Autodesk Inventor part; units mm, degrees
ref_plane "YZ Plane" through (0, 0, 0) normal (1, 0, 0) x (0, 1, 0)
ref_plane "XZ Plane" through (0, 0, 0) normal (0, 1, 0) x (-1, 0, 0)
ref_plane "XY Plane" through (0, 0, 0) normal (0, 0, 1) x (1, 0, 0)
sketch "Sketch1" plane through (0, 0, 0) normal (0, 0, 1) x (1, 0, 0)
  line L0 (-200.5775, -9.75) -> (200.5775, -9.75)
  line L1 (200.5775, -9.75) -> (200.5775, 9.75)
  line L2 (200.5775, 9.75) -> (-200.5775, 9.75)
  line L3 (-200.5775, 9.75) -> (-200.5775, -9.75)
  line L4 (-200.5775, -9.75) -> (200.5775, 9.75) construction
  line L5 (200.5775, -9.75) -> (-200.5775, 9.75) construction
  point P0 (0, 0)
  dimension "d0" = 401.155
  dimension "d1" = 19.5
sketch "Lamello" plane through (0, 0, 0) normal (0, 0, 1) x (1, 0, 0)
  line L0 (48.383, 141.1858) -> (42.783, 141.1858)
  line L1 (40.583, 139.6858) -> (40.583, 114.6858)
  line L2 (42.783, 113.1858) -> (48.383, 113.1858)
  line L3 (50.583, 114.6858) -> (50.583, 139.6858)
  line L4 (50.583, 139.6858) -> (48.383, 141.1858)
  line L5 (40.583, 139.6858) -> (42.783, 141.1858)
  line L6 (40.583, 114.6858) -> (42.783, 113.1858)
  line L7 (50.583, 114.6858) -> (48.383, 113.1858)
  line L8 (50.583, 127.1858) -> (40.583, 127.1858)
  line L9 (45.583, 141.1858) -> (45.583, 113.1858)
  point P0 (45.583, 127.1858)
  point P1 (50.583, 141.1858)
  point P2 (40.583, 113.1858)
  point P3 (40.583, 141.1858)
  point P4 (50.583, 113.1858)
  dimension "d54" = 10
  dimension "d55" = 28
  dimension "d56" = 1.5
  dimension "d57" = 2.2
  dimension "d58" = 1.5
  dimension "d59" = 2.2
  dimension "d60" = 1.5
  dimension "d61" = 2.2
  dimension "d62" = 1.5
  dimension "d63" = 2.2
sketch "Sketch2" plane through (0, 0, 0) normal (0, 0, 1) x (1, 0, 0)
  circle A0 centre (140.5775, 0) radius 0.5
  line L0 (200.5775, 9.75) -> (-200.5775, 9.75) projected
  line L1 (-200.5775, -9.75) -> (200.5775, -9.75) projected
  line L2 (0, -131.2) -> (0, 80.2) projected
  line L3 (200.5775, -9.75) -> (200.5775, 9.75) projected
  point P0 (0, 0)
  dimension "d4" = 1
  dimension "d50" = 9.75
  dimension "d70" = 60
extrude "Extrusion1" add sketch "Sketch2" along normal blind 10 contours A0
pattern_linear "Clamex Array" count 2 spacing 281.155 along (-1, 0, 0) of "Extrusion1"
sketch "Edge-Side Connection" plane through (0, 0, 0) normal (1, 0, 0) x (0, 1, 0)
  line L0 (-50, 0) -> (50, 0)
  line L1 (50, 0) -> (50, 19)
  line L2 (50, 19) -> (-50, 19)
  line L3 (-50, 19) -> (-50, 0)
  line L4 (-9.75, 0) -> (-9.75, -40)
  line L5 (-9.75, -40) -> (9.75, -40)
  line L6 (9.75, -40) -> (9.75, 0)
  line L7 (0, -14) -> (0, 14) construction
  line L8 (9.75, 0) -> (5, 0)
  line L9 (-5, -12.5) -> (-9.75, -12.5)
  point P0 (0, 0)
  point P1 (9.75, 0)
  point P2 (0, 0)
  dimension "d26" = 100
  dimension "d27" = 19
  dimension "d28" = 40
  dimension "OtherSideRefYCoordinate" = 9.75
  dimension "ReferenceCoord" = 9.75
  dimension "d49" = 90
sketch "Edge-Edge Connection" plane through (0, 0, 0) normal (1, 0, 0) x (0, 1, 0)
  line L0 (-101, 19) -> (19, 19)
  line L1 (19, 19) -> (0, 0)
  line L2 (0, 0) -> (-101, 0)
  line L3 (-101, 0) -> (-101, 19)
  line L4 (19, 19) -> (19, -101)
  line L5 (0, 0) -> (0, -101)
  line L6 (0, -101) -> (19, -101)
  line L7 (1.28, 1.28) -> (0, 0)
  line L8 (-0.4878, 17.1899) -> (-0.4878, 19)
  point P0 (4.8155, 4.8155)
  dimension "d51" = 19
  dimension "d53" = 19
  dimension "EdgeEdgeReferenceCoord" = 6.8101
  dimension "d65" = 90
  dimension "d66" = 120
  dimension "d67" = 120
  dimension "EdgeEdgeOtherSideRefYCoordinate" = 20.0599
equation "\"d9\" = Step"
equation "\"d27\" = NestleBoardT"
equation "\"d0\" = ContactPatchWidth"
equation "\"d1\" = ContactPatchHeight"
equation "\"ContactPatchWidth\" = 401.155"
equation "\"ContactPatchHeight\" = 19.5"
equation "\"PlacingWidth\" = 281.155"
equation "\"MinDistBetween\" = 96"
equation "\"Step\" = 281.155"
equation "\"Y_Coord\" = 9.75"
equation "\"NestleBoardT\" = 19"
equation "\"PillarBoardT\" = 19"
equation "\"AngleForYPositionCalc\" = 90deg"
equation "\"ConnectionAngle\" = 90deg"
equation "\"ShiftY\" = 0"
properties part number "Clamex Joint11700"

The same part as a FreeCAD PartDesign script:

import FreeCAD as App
import Part
import Sketcher
Q = App.Units.Quantity

doc = App.newDocument("Part")
params = doc.addObject("Spreadsheet::Sheet", "Params")
for row, (alias, value) in enumerate([
    ("sketch1_diameter", "1 mm"),
    ("pad1_length", "10 mm"),
    ("linearpattern_pitch", "281.155 mm"),
], start=1):
    params.set(f"A{row}", alias)
    params.set(f"B{row}", "=" + value)
    params.setAlias(f"B{row}", alias)

body = doc.addObject("PartDesign::Body", "Body")
body.AllowCompound = True

# Sketch on XY plane
sketch1 = body.newObject("Sketcher::SketchObject", "Sketch")
sketch1.AttachmentSupport = (doc.getObject("XY_Plane"), [""])
sketch1.MapMode = "FlatFace"
sketch1.addGeometry(Part.Circle(App.Vector(140.6, 0, 0), App.Vector(0, 0, 1), 0.5), False)
sketch1.addConstraint(Sketcher.Constraint("PointOnObject", 0, 3, -1))
sketch1.addConstraint(Sketcher.Constraint("Diameter", 0, Q("1 mm")))
sketch1.addConstraint(Sketcher.Constraint("DistanceX", -1, 1, 0, 3, Q("140.5775 mm")))
sketch1.setExpression("Constraints[1]", "Params.sketch1_diameter")
pad1 = body.newObject("PartDesign::Pad", "Pad")
pad1.Profile = sketch1
pad1.setExpression("Length", "Params.pad1_length")
doc.recompute()

linearpattern = body.newObject("PartDesign::LinearPattern", "LinearPattern")
linearpattern.Originals = [pad1]
linearpattern.Direction = (doc.getObject("X_Axis"), [""])
linearpattern.Mode = "offset"
linearpattern.setExpression("Offset", "Params.linearpattern_pitch")
linearpattern.Occurrences = 2
linearpattern.Reversed = True
body.Tip = linearpattern

doc.recompute()
